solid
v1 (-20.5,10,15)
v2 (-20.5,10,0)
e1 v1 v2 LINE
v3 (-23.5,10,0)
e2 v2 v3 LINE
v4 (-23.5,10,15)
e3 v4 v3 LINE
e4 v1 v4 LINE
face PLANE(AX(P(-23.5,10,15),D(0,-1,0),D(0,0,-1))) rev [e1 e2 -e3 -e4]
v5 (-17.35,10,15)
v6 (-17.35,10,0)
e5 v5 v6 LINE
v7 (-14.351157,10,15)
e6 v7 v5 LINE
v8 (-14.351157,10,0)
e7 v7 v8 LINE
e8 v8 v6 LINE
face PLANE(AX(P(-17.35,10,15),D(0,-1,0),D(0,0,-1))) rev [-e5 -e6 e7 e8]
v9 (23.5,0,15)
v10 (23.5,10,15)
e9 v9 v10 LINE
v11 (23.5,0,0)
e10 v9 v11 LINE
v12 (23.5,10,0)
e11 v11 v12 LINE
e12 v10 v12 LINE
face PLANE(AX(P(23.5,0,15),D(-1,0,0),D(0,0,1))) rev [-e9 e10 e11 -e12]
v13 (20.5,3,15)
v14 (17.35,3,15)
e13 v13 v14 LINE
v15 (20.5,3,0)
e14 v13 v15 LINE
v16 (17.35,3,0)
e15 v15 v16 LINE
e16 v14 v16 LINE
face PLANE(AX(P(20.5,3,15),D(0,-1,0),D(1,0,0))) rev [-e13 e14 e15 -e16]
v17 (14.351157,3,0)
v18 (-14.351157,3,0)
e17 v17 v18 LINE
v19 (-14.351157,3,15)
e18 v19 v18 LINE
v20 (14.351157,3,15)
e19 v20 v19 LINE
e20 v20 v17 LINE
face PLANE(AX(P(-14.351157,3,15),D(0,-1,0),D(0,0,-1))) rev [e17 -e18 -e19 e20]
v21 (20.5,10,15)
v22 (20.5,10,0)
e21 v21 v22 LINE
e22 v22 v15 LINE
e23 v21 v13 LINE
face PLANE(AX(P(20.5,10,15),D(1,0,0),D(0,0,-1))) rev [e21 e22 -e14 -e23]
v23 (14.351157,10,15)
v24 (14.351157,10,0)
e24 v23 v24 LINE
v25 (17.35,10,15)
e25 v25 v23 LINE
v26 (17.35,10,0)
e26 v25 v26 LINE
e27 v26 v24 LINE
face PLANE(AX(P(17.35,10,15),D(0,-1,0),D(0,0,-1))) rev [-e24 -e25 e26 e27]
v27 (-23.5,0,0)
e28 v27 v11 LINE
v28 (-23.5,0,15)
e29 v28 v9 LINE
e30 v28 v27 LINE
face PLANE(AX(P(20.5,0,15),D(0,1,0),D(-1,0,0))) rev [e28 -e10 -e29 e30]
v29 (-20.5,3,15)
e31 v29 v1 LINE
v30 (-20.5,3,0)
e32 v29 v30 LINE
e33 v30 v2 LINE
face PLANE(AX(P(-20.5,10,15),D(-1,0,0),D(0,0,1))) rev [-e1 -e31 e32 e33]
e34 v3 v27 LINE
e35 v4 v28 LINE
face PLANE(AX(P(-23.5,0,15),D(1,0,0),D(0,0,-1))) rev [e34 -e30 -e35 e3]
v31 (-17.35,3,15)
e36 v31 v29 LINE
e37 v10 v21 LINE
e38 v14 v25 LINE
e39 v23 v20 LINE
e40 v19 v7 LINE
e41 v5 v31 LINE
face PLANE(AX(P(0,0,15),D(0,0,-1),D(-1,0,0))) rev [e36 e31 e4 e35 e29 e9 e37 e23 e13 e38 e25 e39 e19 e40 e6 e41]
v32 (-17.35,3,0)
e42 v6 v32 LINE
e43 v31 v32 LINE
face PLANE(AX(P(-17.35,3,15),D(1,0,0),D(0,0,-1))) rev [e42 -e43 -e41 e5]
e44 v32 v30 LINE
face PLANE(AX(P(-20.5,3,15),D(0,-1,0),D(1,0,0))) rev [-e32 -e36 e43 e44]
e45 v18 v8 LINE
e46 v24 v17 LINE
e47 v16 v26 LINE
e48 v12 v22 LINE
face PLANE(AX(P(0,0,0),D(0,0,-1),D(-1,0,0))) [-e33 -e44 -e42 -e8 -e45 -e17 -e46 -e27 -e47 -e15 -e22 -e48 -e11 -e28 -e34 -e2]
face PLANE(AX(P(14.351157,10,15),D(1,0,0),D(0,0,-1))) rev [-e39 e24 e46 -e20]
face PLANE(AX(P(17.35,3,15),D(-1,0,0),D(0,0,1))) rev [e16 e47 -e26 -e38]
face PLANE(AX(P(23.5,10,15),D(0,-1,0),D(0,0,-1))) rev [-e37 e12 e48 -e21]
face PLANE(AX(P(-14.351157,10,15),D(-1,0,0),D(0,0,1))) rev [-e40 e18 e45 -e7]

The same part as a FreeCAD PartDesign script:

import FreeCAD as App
import Part
import Sketcher
from FreeCAD import Vector

doc = App.newDocument("Part")
body = doc.addObject("PartDesign::Body", "Body")

sketch1 = body.newObject("Sketcher::SketchObject", "Sketch")
sketch1.AttachmentSupport = (doc.getObject("XY_Plane"), [""])
sketch1.MapMode = "FlatFace"
sketch1.addGeometry(Part.LineSegment(Vector(-23.5, 0, 0), Vector(23.5, 0, 0)), False)
sketch1.addGeometry(Part.LineSegment(Vector(23.5, 0, 0), Vector(23.5, 10, 0)), False)
sketch1.addGeometry(Part.LineSegment(Vector(23.5, 10, 0), Vector(20.5, 10, 0)), False)
sketch1.addGeometry(Part.LineSegment(Vector(20.5, 10, 0), Vector(20.5, 3, 0)), False)
sketch1.addGeometry(Part.LineSegment(Vector(20.5, 3, 0), Vector(17.4, 3, 0)), False)
sketch1.addGeometry(Part.LineSegment(Vector(17.4, 3, 0), Vector(17.4, 10, 0)), False)
sketch1.addGeometry(Part.LineSegment(Vector(17.4, 10, 0), Vector(14.4, 10, 0)), False)
sketch1.addGeometry(Part.LineSegment(Vector(14.4, 10, 0), Vector(14.4, 3, 0)), False)
sketch1.addGeometry(Part.LineSegment(Vector(14.4, 3, 0), Vector(-14.4, 3, 0)), False)
sketch1.addGeometry(Part.LineSegment(Vector(-14.4, 3, 0), Vector(-14.4, 10, 0)), False)
sketch1.addGeometry(Part.LineSegment(Vector(-14.4, 10, 0), Vector(-17.4, 10, 0)), False)
sketch1.addGeometry(Part.LineSegment(Vector(-17.4, 10, 0), Vector(-17.4, 3, 0)), False)
sketch1.addGeometry(Part.LineSegment(Vector(-17.4, 3, 0), Vector(-20.5, 3, 0)), False)
sketch1.addGeometry(Part.LineSegment(Vector(-20.5, 3, 0), Vector(-20.5, 10, 0)), False)
sketch1.addGeometry(Part.LineSegment(Vector(-20.5, 10, 0), Vector(-23.5, 10, 0)), False)
sketch1.addGeometry(Part.LineSegment(Vector(-23.5, 10, 0), Vector(-23.5, 0, 0)), False)
sketch1.addConstraint(Sketcher.Constraint("Coincident", 0, 2, 1, 1))
sketch1.addConstraint(Sketcher.Constraint("Coincident", 1, 2, 2, 1))
sketch1.addConstraint(Sketcher.Constraint("Coincident", 2, 2, 3, 1))
sketch1.addConstraint(Sketcher.Constraint("Coincident", 3, 2, 4, 1))
sketch1.addConstraint(Sketcher.Constraint("Coincident", 4, 2, 5, 1))
sketch1.addConstraint(Sketcher.Constraint("Coincident", 5, 2, 6, 1))
sketch1.addConstraint(Sketcher.Constraint("Coincident", 6, 2, 7, 1))
sketch1.addConstraint(Sketcher.Constraint("Coincident", 7, 2, 8, 1))
sketch1.addConstraint(Sketcher.Constraint("Coincident", 8, 2, 9, 1))
sketch1.addConstraint(Sketcher.Constraint("Coincident", 9, 2, 10, 1))
sketch1.addConstraint(Sketcher.Constraint("Coincident", 10, 2, 11, 1))
sketch1.addConstraint(Sketcher.Constraint("Coincident", 11, 2, 12, 1))
sketch1.addConstraint(Sketcher.Constraint("Coincident", 12, 2, 13, 1))
sketch1.addConstraint(Sketcher.Constraint("Coincident", 13, 2, 14, 1))
sketch1.addConstraint(Sketcher.Constraint("Coincident", 14, 2, 15, 1))
sketch1.addConstraint(Sketcher.Constraint("Coincident", 15, 2, 0, 1))
sketch1.addConstraint(Sketcher.Constraint("Horizontal", 0))
sketch1.addConstraint(Sketcher.Constraint("Vertical", 1))
sketch1.addConstraint(Sketcher.Constraint("Horizontal", 2))
sketch1.addConstraint(Sketcher.Constraint("Vertical", 3))
sketch1.addConstraint(Sketcher.Constraint("Horizontal", 4))
sketch1.addConstraint(Sketcher.Constraint("Vertical", 5))
sketch1.addConstraint(Sketcher.Constraint("Horizontal", 6))
sketch1.addConstraint(Sketcher.Constraint("Vertical", 7))
sketch1.addConstraint(Sketcher.Constraint("Horizontal", 8))
sketch1.addConstraint(Sketcher.Constraint("Vertical", 9))
sketch1.addConstraint(Sketcher.Constraint("Horizontal", 10))
sketch1.addConstraint(Sketcher.Constraint("Vertical", 11))
sketch1.addConstraint(Sketcher.Constraint("Horizontal", 12))
sketch1.addConstraint(Sketcher.Constraint("Vertical", 13))
sketch1.addConstraint(Sketcher.Constraint("Horizontal", 14))
sketch1.addConstraint(Sketcher.Constraint("Vertical", 15))
sketch1.addConstraint(Sketcher.Constraint("Symmetric", 0, 2, 15, 2, -1, 1))
sketch1.addConstraint(Sketcher.Constraint("Symmetric", 6, 2, 9, 2, -2))
sketch1.addConstraint(Sketcher.Constraint("Symmetric", 4, 2, 11, 2, -2))
sketch1.addConstraint(Sketcher.Constraint("Symmetric", 2, 2, 13, 2, -2))
sketch1.addConstraint(Sketcher.Constraint("Horizontal", 2, 2, 5, 2))
sketch1.addConstraint(Sketcher.Constraint("Horizontal", 4, 2, 7, 2))
sketch1.addConstraint(Sketcher.Constraint("DistanceX", 0, 1, 0, 2, 47.0))
sketch1.addConstraint(Sketcher.Constraint("DistanceX", 2, 2, 2, 1, 3.0))
sketch1.addConstraint(Sketcher.Constraint("DistanceY", 1, 1, 1, 2, 10.0))
sketch1.addConstraint(Sketcher.Constraint("DistanceY", 3, 2, 3, 1, 7.0))
sketch1.addConstraint(Sketcher.Constraint("DistanceX", 4, 2, 4, 1, 3.15))
sketch1.addConstraint(Sketcher.Constraint("DistanceX", 6, 2, 6, 1, 2.998843))
pad1 = body.newObject("PartDesign::Pad", "Pad")
pad1.Profile = sketch1
pad1.Length = 15

doc.recompute()
